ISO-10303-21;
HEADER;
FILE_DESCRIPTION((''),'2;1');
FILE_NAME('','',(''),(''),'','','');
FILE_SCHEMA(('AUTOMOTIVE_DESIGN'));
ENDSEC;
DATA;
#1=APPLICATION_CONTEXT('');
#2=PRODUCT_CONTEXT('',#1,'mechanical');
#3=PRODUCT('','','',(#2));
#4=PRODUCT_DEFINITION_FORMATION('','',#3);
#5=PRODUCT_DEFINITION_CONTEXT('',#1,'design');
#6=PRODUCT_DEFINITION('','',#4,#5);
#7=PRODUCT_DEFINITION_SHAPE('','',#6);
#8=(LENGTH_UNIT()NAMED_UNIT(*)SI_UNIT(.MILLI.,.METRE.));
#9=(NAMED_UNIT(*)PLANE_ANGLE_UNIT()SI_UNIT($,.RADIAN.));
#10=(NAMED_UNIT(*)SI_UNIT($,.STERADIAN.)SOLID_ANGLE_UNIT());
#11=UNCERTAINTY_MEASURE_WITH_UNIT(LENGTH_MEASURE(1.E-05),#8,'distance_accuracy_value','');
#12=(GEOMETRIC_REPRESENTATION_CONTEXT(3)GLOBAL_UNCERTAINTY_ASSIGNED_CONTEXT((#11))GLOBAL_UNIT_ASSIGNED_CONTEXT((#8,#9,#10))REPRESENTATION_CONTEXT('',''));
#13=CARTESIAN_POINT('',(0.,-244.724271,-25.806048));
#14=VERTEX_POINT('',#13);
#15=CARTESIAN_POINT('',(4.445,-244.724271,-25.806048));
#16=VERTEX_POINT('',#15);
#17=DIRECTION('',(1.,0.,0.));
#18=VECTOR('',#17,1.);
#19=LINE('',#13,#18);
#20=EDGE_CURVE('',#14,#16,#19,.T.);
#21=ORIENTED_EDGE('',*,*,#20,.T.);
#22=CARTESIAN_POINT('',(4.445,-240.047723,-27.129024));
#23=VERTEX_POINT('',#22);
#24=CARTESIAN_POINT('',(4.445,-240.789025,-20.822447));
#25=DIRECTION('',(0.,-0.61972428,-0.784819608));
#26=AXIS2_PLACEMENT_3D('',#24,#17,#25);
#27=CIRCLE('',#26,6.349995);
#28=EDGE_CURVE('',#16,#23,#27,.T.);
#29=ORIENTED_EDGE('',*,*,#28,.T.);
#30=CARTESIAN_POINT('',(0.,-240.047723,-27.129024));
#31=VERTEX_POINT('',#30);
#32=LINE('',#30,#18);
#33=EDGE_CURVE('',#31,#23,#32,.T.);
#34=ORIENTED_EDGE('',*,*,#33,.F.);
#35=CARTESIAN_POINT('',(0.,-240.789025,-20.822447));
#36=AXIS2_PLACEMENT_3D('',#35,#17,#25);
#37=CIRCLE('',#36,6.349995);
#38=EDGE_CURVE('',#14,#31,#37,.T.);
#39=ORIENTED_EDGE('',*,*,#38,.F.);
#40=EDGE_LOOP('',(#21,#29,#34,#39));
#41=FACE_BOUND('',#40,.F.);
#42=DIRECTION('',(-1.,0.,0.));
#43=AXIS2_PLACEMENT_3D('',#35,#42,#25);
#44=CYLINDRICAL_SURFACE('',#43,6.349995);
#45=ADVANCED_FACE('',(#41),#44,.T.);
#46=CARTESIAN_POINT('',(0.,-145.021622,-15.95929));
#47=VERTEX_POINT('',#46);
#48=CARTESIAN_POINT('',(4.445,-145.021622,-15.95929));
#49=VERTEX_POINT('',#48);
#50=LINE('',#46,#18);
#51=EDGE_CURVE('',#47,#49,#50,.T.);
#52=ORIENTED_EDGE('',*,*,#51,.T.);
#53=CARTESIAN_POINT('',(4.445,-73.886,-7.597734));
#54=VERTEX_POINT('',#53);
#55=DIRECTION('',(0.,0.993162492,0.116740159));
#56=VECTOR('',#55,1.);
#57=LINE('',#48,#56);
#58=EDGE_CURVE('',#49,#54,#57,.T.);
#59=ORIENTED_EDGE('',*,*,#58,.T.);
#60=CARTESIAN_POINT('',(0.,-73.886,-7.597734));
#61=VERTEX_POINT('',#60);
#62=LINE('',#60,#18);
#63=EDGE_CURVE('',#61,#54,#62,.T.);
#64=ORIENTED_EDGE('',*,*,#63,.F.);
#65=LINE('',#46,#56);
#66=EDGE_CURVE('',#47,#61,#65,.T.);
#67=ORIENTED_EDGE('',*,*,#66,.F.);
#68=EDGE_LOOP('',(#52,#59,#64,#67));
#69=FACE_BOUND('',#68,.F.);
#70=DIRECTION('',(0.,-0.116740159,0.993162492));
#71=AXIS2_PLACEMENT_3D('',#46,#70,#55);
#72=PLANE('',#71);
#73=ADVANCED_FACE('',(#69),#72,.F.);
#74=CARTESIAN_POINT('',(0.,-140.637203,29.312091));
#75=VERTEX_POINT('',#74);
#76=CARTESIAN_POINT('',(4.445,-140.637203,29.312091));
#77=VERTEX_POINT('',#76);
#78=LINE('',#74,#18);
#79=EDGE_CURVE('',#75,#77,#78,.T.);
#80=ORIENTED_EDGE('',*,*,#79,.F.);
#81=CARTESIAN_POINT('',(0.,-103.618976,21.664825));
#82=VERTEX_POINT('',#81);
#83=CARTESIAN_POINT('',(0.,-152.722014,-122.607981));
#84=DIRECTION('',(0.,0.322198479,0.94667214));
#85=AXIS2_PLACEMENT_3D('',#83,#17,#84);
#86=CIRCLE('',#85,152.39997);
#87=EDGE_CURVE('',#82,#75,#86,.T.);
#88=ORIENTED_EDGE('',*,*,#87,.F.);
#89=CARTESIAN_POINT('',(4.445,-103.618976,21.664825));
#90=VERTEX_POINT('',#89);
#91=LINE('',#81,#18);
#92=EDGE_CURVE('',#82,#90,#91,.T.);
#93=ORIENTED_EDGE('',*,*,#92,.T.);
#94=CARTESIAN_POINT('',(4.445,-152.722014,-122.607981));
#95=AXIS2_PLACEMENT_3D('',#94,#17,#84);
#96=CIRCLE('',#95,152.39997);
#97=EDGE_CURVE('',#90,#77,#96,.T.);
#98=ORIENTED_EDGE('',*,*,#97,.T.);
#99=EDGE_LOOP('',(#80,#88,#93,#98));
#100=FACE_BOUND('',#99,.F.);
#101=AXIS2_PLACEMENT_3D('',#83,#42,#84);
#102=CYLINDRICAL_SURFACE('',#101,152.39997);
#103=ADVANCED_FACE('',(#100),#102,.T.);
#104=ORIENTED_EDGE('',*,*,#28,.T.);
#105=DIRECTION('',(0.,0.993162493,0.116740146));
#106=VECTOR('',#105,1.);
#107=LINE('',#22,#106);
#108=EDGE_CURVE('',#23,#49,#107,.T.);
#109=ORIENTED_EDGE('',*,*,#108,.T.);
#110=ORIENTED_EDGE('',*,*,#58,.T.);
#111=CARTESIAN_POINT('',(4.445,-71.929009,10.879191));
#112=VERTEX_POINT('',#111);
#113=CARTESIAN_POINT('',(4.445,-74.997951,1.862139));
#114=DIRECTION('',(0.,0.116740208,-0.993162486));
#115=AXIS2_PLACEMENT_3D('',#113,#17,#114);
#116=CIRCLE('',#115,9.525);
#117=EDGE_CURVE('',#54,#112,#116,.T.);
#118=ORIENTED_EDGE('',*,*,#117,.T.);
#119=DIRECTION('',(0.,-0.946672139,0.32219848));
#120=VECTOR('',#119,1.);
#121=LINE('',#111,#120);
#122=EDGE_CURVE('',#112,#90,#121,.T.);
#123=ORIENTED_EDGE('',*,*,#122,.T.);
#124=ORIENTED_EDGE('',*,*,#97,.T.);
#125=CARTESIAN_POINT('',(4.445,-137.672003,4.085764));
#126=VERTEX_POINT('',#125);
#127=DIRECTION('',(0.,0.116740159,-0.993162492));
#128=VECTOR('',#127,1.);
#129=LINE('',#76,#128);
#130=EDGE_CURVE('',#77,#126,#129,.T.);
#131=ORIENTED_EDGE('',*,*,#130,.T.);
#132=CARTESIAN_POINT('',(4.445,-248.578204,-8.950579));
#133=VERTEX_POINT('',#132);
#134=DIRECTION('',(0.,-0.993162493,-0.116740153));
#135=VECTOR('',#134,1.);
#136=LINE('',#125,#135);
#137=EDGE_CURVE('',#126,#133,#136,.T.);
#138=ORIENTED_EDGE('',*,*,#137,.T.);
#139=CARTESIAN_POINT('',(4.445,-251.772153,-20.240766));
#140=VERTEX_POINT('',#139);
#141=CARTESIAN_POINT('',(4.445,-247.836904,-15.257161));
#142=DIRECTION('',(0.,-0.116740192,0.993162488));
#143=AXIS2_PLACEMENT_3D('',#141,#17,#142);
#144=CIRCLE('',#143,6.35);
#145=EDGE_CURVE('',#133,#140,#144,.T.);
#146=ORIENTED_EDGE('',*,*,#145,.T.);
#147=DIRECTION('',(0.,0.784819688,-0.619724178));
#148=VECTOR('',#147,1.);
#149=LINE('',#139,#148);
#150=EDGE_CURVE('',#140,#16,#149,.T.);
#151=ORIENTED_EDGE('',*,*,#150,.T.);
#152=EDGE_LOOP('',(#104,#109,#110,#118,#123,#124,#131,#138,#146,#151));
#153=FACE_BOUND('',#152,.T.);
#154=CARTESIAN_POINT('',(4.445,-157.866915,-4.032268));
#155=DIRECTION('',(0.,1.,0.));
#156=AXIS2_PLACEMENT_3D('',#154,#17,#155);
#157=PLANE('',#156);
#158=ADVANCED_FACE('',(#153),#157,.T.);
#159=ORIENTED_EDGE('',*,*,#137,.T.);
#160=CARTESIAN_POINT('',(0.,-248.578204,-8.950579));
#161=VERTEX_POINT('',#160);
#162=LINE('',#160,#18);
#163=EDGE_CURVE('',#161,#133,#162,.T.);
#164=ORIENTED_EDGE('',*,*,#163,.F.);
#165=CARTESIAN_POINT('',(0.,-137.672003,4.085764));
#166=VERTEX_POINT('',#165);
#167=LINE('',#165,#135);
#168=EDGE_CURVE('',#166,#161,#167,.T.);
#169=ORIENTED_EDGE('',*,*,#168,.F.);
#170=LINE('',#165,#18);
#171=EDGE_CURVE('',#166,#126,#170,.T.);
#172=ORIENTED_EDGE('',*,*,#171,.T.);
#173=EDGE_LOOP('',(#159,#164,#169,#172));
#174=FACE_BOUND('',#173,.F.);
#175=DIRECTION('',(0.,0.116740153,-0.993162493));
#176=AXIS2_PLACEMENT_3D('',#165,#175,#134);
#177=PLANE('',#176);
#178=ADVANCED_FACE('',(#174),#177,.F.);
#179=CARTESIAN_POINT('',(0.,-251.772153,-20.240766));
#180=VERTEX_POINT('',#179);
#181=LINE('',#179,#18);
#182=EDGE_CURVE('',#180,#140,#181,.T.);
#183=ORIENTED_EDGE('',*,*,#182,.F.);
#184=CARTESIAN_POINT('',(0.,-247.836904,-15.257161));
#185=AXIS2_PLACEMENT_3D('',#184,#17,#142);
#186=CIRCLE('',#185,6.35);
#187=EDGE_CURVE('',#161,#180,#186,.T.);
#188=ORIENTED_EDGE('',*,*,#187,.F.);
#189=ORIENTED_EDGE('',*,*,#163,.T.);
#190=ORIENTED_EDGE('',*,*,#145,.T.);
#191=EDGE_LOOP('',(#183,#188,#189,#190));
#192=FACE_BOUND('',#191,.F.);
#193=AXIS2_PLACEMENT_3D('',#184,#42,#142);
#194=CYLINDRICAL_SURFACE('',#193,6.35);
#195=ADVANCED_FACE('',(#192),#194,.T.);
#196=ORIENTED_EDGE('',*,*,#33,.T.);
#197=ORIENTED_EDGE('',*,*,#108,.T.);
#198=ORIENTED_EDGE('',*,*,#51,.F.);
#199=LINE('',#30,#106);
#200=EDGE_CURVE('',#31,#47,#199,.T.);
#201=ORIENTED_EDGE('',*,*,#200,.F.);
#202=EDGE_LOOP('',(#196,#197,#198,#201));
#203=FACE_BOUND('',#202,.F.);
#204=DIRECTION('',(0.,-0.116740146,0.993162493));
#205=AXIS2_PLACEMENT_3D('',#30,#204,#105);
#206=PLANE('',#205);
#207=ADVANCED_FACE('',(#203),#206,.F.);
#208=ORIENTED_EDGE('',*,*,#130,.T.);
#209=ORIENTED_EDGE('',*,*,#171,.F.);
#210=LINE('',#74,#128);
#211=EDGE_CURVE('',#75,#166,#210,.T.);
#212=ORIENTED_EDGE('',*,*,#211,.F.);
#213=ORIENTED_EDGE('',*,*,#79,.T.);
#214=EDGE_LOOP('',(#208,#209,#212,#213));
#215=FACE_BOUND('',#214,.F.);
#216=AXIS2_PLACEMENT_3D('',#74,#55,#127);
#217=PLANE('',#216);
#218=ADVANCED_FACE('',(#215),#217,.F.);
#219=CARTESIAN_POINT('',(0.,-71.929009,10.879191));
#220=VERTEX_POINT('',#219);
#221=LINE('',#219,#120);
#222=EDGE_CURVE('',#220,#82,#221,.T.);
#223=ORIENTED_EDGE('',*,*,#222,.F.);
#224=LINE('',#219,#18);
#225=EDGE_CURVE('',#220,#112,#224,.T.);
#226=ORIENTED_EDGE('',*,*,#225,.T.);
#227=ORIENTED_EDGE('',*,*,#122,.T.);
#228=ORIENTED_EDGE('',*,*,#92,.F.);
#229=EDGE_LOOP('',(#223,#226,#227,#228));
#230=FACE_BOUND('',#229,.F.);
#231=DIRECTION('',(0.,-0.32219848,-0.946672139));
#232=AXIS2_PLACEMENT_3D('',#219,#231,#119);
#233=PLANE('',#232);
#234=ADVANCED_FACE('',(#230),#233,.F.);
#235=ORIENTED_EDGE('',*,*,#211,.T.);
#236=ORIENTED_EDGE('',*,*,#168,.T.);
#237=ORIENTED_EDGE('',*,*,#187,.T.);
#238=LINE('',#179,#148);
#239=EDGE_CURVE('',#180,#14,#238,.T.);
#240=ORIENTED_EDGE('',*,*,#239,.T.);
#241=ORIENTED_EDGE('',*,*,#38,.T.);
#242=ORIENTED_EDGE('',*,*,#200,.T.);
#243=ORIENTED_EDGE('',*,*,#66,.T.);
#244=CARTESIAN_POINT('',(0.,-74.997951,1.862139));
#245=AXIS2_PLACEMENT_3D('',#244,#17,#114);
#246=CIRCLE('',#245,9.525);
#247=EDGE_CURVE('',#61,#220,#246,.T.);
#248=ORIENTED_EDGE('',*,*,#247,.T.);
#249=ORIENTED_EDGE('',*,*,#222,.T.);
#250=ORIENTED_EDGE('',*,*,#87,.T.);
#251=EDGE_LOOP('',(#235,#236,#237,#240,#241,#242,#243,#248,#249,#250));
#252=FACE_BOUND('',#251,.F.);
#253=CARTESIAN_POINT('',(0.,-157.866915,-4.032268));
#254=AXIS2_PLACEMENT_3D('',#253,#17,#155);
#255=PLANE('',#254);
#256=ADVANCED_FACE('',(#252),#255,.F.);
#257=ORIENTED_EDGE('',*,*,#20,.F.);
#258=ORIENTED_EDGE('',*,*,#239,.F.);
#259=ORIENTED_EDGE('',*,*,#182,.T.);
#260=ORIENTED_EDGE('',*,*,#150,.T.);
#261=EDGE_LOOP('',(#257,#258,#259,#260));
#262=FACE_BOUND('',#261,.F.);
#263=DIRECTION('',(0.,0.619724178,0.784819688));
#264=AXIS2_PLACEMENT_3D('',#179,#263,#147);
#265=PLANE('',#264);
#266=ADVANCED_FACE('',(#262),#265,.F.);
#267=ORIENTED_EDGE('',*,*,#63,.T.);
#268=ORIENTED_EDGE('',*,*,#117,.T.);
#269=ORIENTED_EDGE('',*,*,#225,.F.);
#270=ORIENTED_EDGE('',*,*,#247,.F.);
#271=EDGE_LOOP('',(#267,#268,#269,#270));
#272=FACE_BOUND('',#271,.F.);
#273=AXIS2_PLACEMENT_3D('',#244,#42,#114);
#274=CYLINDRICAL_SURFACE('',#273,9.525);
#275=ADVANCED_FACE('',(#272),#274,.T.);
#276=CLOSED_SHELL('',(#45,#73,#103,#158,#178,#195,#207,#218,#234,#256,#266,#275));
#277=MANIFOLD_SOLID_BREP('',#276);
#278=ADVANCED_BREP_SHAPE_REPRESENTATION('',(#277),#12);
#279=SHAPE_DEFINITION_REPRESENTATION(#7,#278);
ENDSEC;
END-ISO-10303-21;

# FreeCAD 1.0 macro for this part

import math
import FreeCAD as App
import Part
import Sketcher
from FreeCAD import Vector
Q = App.Units.Quantity

doc = App.newDocument("Part")
params = doc.addObject("Spreadsheet::Sheet", "Params")
for row, (alias, value) in enumerate([
    ("sketch1_radius", "0.25 in"),
    ("sketch1_radius2", "0.2499998 in"),
    ("sketch1_length", "1 in"),
    ("sketch1_radius3", "0.375 in"),
    ("pad1_length", "0.175 in"),
], start=1):
    params.set(f"A{row}", alias)
    params.set(f"B{row}", "=" + value)
    params.setAlias(f"B{row}", alias)

body = doc.addObject("PartDesign::Body", "Body")

sketch1 = doc.addObject("Sketcher::SketchObject", "Sketch")
body.addObject(sketch1)
sketch1.AttachmentSupport = (doc.YZ_Plane, [""])
sketch1.MapMode = "FlatFace"
sketch1.addGeometry([
    Part.LineSegment(Vector(-71.929009, 10.879191, 0), Vector(-103.618976, 21.664825, 0)),
    Part.ArcOfCircle(Part.Circle(Vector(-152.722014, -122.607981, 0), Vector(0, 0, 1), 152.39997), math.radians(71.204068), math.radians(85.45186)),
    Part.LineSegment(Vector(-140.637203, 29.312091, 0), Vector(-137.672003, 4.085764, 0)),
    Part.LineSegment(Vector(-137.672003, 4.085764, 0), Vector(-248.578204, -8.950579, 0)),
    Part.ArcOfCircle(Part.Circle(Vector(-247.836904, -15.257161, 0), Vector(0, 0, 1), 6.35), math.radians(96.704007), math.radians(231.703999)),
    Part.LineSegment(Vector(-251.772153, -20.240766, 0), Vector(-244.724271, -25.806048, 0)),
    Part.ArcOfCircle(Part.Circle(Vector(-240.789025, -20.822447, 0), Vector(0, 0, 1), 6.349995), math.radians(-128.296003), math.radians(-83.295973)),
    Part.LineSegment(Vector(-240.047723, -27.129024, 0), Vector(-145.021622, -15.95929, 0)),
    Part.LineSegment(Vector(-145.021622, -15.95929, 0), Vector(-73.886, -7.597734, 0)),
    Part.ArcOfCircle(Part.Circle(Vector(-74.997951, 1.862139, 0), Vector(0, 0, 1), 9.525), math.radians(-83.295992), math.radians(71.204062)),
], False)
sketch1.addConstraint([
    Sketcher.Constraint("Coincident", 0, 2, 1, 1),
    Sketcher.Constraint("Coincident", 1, 2, 2, 1),
    Sketcher.Constraint("Coincident", 2, 2, 3, 1),
    Sketcher.Constraint("Coincident", 3, 2, 4, 1),
    Sketcher.Constraint("Coincident", 4, 2, 5, 1),
    Sketcher.Constraint("Coincident", 5, 2, 6, 1),
    Sketcher.Constraint("Coincident", 6, 2, 7, 1),
    Sketcher.Constraint("Coincident", 7, 2, 8, 1),
    Sketcher.Constraint("Coincident", 8, 2, 9, 1),
    Sketcher.Constraint("Coincident", 9, 2, 0, 1),
    Sketcher.Constraint("Radius", 4, Q("0.25 in")),
    Sketcher.Constraint("Radius", 6, Q("0.2499998 in")),
    Sketcher.Constraint("Distance", 2, Q("1 in")),
    Sketcher.Constraint("Radius", 9, Q("0.375 in")),
    Sketcher.Constraint("Radius", 1, Q("152.39997 mm")),
    Sketcher.Constraint("DistanceX", 1, 2, 8, 2, Q("2.6280001 in")),
    Sketcher.Constraint("DistanceY", 4, 2, 1, 2, Q("1.9508999 in")),
    Sketcher.Constraint("DistanceX", 8, 2, -1, 1, Q("73.886 mm")),
    Sketcher.Constraint("DistanceY", 4, 3, 9, 3, Q("17.1193 mm")),
    Sketcher.Constraint("DistanceX", 4, 3, 1, 2, Q("107.199701 mm")),
    Sketcher.Constraint("DistanceX", 1, 2, 2, 2, Q("2.9652 mm")),
    Sketcher.Constraint("DistanceX", 3, 2, 4, 3, Q("0.7413 mm")),
    Sketcher.Constraint("DistanceY", 5, 2, 6, 3, Q("4.983601 mm")),
    Sketcher.Constraint("DistanceX", 6, 3, 6, 2, Q("0.741302 mm")),
    Sketcher.Constraint("DistanceX", 6, 2, 7, 2, Q("95.026101 mm")),
    Sketcher.Constraint("DistanceY", 9, 2, 1, 2, Q("18.4329 mm")),
    Sketcher.Constraint("Distance", 8, Q("71.625361 mm")),
    Sketcher.Constraint("DistanceY", 1, 3, -1, 1, Q("122.607981 mm")),
    Sketcher.Constraint("DistanceY", 4, 3, -1, 1, Q("15.257161 mm")),
    Sketcher.Constraint("DistanceX", 9, 3, -1, 1, Q("74.997951 mm")),
    Sketcher.Constraint("DistanceY", -1, 1, 1, 2, Q("29.312091 mm")),
    Sketcher.Constraint("DistanceX", 5, 2, -1, 1, Q("244.724271 mm")),
    Sketcher.Constraint("DistanceY", 5, 2, -1, 1, Q("25.806048 mm")),
    Sketcher.Constraint("DistanceX", 6, 3, 0, 2, Q("137.170049 mm")),
])
sketch1.setExpression("Constraints[10]", "Params.sketch1_radius")
sketch1.setExpression("Constraints[11]", "Params.sketch1_radius2")
sketch1.setExpression("Constraints[12]", "Params.sketch1_length")
sketch1.setExpression("Constraints[13]", "Params.sketch1_radius3")
pad1 = doc.addObject("PartDesign::Pad", "Pad")
body.addObject(pad1)
pad1.Profile = sketch1
pad1.setExpression("Length", "Params.pad1_length")

doc.recompute()
